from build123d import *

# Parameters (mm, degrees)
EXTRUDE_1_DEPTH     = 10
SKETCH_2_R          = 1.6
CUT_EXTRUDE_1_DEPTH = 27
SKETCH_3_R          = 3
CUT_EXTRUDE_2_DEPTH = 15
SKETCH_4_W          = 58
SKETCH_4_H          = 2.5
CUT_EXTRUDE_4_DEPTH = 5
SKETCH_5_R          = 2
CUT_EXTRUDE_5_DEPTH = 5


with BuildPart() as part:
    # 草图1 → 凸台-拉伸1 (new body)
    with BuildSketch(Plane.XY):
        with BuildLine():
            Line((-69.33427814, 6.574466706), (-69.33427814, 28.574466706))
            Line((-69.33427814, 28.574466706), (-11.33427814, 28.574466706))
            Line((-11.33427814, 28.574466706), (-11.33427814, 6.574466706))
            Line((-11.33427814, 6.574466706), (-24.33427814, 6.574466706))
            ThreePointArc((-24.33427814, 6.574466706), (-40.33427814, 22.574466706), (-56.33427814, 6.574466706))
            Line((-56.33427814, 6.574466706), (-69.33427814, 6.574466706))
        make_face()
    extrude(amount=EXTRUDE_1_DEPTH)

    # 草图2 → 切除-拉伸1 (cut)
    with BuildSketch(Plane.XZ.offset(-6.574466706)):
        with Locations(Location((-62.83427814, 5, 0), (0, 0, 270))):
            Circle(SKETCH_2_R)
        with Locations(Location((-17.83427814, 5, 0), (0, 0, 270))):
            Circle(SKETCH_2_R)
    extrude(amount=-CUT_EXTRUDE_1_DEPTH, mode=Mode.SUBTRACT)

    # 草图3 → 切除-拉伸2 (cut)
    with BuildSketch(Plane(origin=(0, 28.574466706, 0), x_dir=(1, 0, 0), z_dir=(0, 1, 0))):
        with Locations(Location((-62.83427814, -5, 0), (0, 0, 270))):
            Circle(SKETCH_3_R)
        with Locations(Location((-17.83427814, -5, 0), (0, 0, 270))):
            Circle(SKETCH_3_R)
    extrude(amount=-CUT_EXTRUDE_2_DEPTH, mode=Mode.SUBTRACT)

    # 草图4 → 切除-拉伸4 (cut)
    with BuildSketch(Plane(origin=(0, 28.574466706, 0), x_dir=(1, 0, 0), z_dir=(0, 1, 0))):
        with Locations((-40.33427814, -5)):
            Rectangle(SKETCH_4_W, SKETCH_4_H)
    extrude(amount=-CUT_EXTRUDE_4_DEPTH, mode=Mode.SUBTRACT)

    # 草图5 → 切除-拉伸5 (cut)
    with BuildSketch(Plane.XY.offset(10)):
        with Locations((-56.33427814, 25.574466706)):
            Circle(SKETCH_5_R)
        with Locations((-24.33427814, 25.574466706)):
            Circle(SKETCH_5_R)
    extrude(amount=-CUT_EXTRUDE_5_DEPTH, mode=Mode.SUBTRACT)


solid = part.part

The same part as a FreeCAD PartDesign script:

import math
import FreeCAD as App
import Part
import Sketcher

V = App.Vector

doc = App.newDocument("Part")
body = doc.addObject("PartDesign::Body", "Body")

# Sketch on XY plane
sketch1 = body.newObject("Sketcher::SketchObject", "Sketch")
sketch1.AttachmentSupport = (doc.getObject("XY_Plane"), [""])
sketch1.MapMode = "FlatFace"
sketch1.addGeometry([
    Part.LineSegment(V(-69, 29, 0), V(-69, 7, 0)),  # 0
    Part.LineSegment(V(-69, 7, 0), V(-56, 7, 0)),  # 1
    Part.ArcOfCircle(Part.Circle(V(-40, 7, 0), V(0, 0, 1), 16), math.radians(0), math.radians(180)),  # 2
    Part.LineSegment(V(-24, 7, 0), V(-11, 7, 0)),  # 3
    Part.LineSegment(V(-11, 7, 0), V(-11, 29, 0)),  # 4
    Part.LineSegment(V(-11, 29, 0), V(-69, 29, 0)),  # 5
], False)
sketch1.addConstraint([
    Sketcher.Constraint("Coincident", 0, 2, 1, 1),
    Sketcher.Constraint("Coincident", 1, 2, 2, 2),
    Sketcher.Constraint("Coincident", 2, 1, 3, 1),
    Sketcher.Constraint("Coincident", 3, 2, 4, 1),
    Sketcher.Constraint("Coincident", 4, 2, 5, 1),
    Sketcher.Constraint("Coincident", 5, 2, 0, 1),
    Sketcher.Constraint("Vertical", 0),
    Sketcher.Constraint("Horizontal", 1),
    Sketcher.Constraint("Horizontal", 3),
    Sketcher.Constraint("Vertical", 4),
    Sketcher.Constraint("Horizontal", 5),
    Sketcher.Constraint("Horizontal", 2, 3, 0, 2),
    Sketcher.Constraint("Horizontal", 1, 2, 2, 1),
    Sketcher.Constraint("Equal", 1, 3),
    Sketcher.Constraint("Radius", 2, 16.0),
    Sketcher.Constraint("DistanceX", 1, 1, 1, 2, 13.0),
    Sketcher.Constraint("DistanceY", 0, 2, 0, 1, 22.0),
    Sketcher.Constraint("DistanceX", 2, 3, -1, 1, 40.334278),
    Sketcher.Constraint("DistanceY", -1, 1, 2, 3, 6.574467),
])
pad1 = body.newObject("PartDesign::Pad", "Pad")
pad1.Profile = sketch1
pad1.Length = 10

# Sketch on XZ plane
sketch2 = body.newObject("Sketcher::SketchObject", "Sketch001")
sketch2.AttachmentSupport = (doc.getObject("XZ_Plane"), [""])
sketch2.MapMode = "FlatFace"
sketch2.AttachmentOffset = App.Placement(V(0, 0, -6.574467), App.Rotation())
sketch2.addGeometry([
    Part.Circle(V(-62.8, 5, 0), V(0, 0, 1), 1.6),
    Part.Circle(V(-17.8, 5, 0), V(0, 0, 1), 1.6),
], False)
sketch2.addConstraint([
    Sketcher.Constraint("Equal", 0, 1),
    Sketcher.Constraint("Horizontal", 0, 3, 1, 3),
    Sketcher.Constraint("Diameter", 0, 3.2),
    Sketcher.Constraint("DistanceY", -1, 1, 0, 3, 5.0),
    Sketcher.Constraint("DistanceX", 0, 3, 1, 3, 45.0),
    Sketcher.Constraint("DistanceX", 0, 3, -1, 1, 62.834278),
])
pocket1 = body.newObject("PartDesign::Pocket", "Pocket")
pocket1.Profile = sketch2
pocket1.Length = 27

# Sketch on XZ plane
sketch3 = body.newObject("Sketcher::SketchObject", "Sketch002")
sketch3.AttachmentSupport = (doc.getObject("XZ_Plane"), [""])
sketch3.MapMode = "FlatFace"
sketch3.AttachmentOffset = App.Placement(V(0, 0, -28.574467), App.Rotation())
sketch3.addGeometry([
    Part.Circle(V(-62.8, 5, 0), V(0, 0, 1), 3),
    Part.Circle(V(-17.8, 5, 0), V(0, 0, 1), 3),
], False)
sketch3.addConstraint([
    Sketcher.Constraint("Equal", 0, 1),
    Sketcher.Constraint("Horizontal", 0, 3, 1, 3),
    Sketcher.Constraint("Diameter", 0, 6.0),
    Sketcher.Constraint("DistanceY", -1, 1, 0, 3, 5.0),
    Sketcher.Constraint("DistanceX", 0, 3, 1, 3, 45.0),
    Sketcher.Constraint("DistanceX", 0, 3, -1, 1, 62.834278),
])
pocket2 = body.newObject("PartDesign::Pocket", "Pocket001")
pocket2.Profile = sketch3
pocket2.Length = 15
pocket2.Reversed = True

# Sketch on XZ plane
sketch4 = body.newObject("Sketcher::SketchObject", "Sketch003")
sketch4.AttachmentSupport = (doc.getObject("XZ_Plane"), [""])
sketch4.MapMode = "FlatFace"
sketch4.AttachmentOffset = App.Placement(V(0, 0, -28.574467), App.Rotation())
sketch4.addGeometry([
    Part.LineSegment(V(-69.3, 3.8, 0), V(-69.3, 6.2, 0)),
    Part.LineSegment(V(-69.3, 6.2, 0), V(-11.3, 6.2, 0)),
    Part.LineSegment(V(-11.3, 6.2, 0), V(-11.3, 3.8, 0)),
    Part.LineSegment(V(-11.3, 3.8, 0), V(-69.3, 3.8, 0)),
], False)
sketch4.addConstraint([
    Sketcher.Constraint("Coincident", 0, 2, 1, 1),
    Sketcher.Constraint("Coincident", 1, 2, 2, 1),
    Sketcher.Constraint("Coincident", 2, 2, 3, 1),
    Sketcher.Constraint("Coincident", 3, 2, 0, 1),
    Sketcher.Constraint("Vertical", 0),
    Sketcher.Constraint("Horizontal", 1),
    Sketcher.Constraint("Vertical", 2),
    Sketcher.Constraint("Horizontal", 3),
    Sketcher.Constraint("DistanceX", 1, 1, 1, 2, 58.0),
    Sketcher.Constraint("DistanceY", 0, 1, 0, 2, 2.5),
    Sketcher.Constraint("DistanceY", -1, 1, 0, 2, 6.25),
    Sketcher.Constraint("DistanceX", 0, 2, -1, 1, 69.334278),
])
pocket3 = body.newObject("PartDesign::Pocket", "Pocket002")
pocket3.Profile = sketch4
pocket3.Length = 5
pocket3.Reversed = True

# Sketch on XY plane
sketch5 = body.newObject("Sketcher::SketchObject", "Sketch004")
sketch5.AttachmentSupport = (doc.getObject("XY_Plane"), [""])
sketch5.MapMode = "FlatFace"
sketch5.AttachmentOffset = App.Placement(V(0, 0, 10), App.Rotation())
sketch5.addGeometry([
    Part.Circle(V(-56.3, 25.6, 0), V(0, 0, 1), 2),
    Part.Circle(V(-24.3, 25.6, 0), V(0, 0, 1), 2),
], False)
sketch5.addConstraint([
    Sketcher.Constraint("Equal", 0, 1),
    Sketcher.Constraint("Horizontal", 0, 3, 1, 3),
    Sketcher.Constraint("Diameter", 0, 4.0),
    Sketcher.Constraint("DistanceX", 0, 3, 1, 3, 32.0),
    Sketcher.Constraint("DistanceX", 0, 3, -1, 1, 56.334278),
    Sketcher.Constraint("DistanceY", -1, 1, 0, 3, 25.574467),
])
pocket4 = body.newObject("PartDesign::Pocket", "Pocket003")
pocket4.Profile = sketch5
pocket4.Length = 5

doc.recompute()
